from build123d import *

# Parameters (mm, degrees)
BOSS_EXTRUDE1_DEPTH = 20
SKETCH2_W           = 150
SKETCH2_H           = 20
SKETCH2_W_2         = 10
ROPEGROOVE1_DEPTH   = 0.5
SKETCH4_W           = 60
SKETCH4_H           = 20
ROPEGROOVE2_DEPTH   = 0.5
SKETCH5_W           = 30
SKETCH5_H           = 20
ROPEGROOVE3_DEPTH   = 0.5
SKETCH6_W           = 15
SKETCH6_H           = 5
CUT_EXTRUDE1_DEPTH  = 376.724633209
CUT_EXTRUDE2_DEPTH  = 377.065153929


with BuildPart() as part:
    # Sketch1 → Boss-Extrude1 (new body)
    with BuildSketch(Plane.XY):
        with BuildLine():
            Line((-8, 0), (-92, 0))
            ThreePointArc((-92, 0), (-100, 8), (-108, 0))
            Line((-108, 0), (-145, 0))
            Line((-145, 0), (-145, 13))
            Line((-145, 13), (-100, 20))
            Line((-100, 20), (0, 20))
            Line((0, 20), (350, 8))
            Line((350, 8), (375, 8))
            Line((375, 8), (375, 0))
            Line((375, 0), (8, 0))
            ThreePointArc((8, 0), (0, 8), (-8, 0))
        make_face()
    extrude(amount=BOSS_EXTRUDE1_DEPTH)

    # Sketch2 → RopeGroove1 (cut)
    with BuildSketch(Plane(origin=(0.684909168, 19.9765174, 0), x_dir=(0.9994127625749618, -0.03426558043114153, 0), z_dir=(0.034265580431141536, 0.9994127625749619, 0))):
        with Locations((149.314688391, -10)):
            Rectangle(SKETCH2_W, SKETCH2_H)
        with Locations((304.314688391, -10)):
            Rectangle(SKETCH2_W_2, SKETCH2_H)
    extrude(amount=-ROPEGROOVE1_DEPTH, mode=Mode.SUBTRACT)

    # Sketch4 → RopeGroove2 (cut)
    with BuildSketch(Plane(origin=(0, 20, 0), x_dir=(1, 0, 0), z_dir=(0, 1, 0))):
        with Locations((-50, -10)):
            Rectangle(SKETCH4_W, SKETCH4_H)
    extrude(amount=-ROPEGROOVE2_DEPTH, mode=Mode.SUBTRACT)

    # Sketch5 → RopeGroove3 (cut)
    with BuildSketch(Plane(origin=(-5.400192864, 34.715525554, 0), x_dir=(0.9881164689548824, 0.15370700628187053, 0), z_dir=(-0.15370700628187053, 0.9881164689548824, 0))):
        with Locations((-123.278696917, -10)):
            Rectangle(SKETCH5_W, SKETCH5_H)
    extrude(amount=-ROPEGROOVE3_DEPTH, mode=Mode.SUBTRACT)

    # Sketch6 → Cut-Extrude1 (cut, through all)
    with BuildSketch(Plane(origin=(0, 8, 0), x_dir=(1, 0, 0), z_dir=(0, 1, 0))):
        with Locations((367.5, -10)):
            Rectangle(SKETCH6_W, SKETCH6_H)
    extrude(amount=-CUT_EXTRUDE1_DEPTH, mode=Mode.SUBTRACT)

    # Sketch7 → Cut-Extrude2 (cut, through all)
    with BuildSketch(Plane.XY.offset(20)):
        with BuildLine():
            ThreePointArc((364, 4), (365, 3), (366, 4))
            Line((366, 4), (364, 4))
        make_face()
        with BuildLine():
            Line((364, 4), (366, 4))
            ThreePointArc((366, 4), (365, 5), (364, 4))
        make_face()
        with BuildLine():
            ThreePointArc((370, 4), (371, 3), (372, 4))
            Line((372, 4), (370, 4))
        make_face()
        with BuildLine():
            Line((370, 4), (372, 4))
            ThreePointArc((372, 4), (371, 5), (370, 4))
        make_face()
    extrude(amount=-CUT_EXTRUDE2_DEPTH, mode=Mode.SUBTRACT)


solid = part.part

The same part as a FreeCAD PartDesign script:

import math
import FreeCAD as App
import Part
import Sketcher
Q = App.Units.Quantity

doc = App.newDocument("Part")
body = doc.addObject("PartDesign::Body", "Body")

# Sketch on XY plane
sketch1 = doc.addObject("Sketcher::SketchObject", "Sketch")
body.addObject(sketch1)
sketch1.AttachmentSupport = (doc.XY_Plane, [""])
sketch1.MapMode = "FlatFace"
sketch1.addGeometry([
    Part.LineSegment(App.Vector(-92, 0, 0), App.Vector(-8, 0, 0)),  # 0
    Part.ArcOfCircle(Part.Circle(App.Vector(0, 0, 0), App.Vector(0, 0, 1), 8), math.radians(0), math.radians(180)),  # 1
    Part.LineSegment(App.Vector(8, 0, 0), App.Vector(375, 0, 0)),  # 2
    Part.LineSegment(App.Vector(375, 0, 0), App.Vector(375, 8, 0)),  # 3
    Part.LineSegment(App.Vector(375, 8, 0), App.Vector(350, 8, 0)),  # 4
    Part.LineSegment(App.Vector(350, 8, 0), App.Vector(0, 20, 0)),  # 5
    Part.LineSegment(App.Vector(0, 20, 0), App.Vector(-100, 20, 0)),  # 6
    Part.LineSegment(App.Vector(-100, 20, 0), App.Vector(-145, 13, 0)),  # 7
    Part.LineSegment(App.Vector(-145, 13, 0), App.Vector(-145, 0, 0)),  # 8
    Part.LineSegment(App.Vector(-145, 0, 0), App.Vector(-108, 0, 0)),  # 9
    Part.ArcOfCircle(Part.Circle(App.Vector(-100, 0, 0), App.Vector(0, 0, 1), 8), math.radians(0), math.radians(180)),  # 10
], False)
sketch1.addConstraint([
    Sketcher.Constraint("Coincident", 0, 2, 1, 2),
    Sketcher.Constraint("Coincident", 1, 1, 2, 1),
    Sketcher.Constraint("Coincident", 2, 2, 3, 1),
    Sketcher.Constraint("Coincident", 3, 2, 4, 1),
    Sketcher.Constraint("Coincident", 4, 2, 5, 1),
    Sketcher.Constraint("Coincident", 5, 2, 6, 1),
    Sketcher.Constraint("Coincident", 6, 2, 7, 1),
    Sketcher.Constraint("Coincident", 7, 2, 8, 1),
    Sketcher.Constraint("Coincident", 8, 2, 9, 1),
    Sketcher.Constraint("Coincident", 9, 2, 10, 2),
    Sketcher.Constraint("Coincident", 10, 1, 0, 1),
    Sketcher.Constraint("Horizontal", 0),
    Sketcher.Constraint("Horizontal", 2),
    Sketcher.Constraint("Vertical", 3),
    Sketcher.Constraint("Horizontal", 4),
    Sketcher.Constraint("Horizontal", 6),
    Sketcher.Constraint("Vertical", 8),
    Sketcher.Constraint("Horizontal", 9),
    Sketcher.Constraint("Coincident", 1, 3, -1, 1),
    Sketcher.Constraint("Equal", 1, 10),
    Sketcher.Constraint("PointOnObject", 10, 3, -1),
    Sketcher.Constraint("PointOnObject", 0, 2, -1),
    Sketcher.Constraint("PointOnObject", 1, 1, -1),
    Sketcher.Constraint("PointOnObject", 5, 2, -2),
    Sketcher.Constraint("PointOnObject", 8, 2, -1),
    Sketcher.Constraint("Vertical", 10, 3, 6, 2),
    Sketcher.Constraint("Radius", 1, Q("8 mm")),
    Sketcher.Constraint("DistanceX", 0, 1, 0, 2, Q("84 mm")),
    Sketcher.Constraint("DistanceX", 2, 1, 2, 2, Q("367 mm")),
    Sketcher.Constraint("DistanceX", 4, 2, 4, 1, Q("25 mm")),
    Sketcher.Constraint("DistanceX", 9, 1, 9, 2, Q("37 mm")),
    Sketcher.Constraint("DistanceY", 3, 1, 3, 2, Q("8 mm")),
    Sketcher.Constraint("DistanceY", 8, 2, 8, 1, Q("13 mm")),
    Sketcher.Constraint("DistanceY", -1, 1, 5, 2, Q("20 mm")),
])
pad1 = doc.addObject("PartDesign::Pad", "Pad")
body.addObject(pad1)
pad1.Profile = sketch1
pad1.Length = 20

# Sketch on an angled plane
sketch2 = doc.addObject("Sketcher::SketchObject", "Sketch001")
body.addObject(sketch2)
sketch2.Placement = App.Placement(App.Vector(0.684909, 19.976517, 0), App.Rotation(App.Vector(0.999412763, -0.03426558, 0), App.Vector(0, 0, -1.000000001), App.Vector(0.03426558, 0.999412763, 0), "ZXY"))
sketch2.addGeometry([
    Part.LineSegment(App.Vector(74, 0, 0), App.Vector(74, -20, 0)),  # 0
    Part.LineSegment(App.Vector(74, -20, 0), App.Vector(224, -20, 0)),  # 1
    Part.LineSegment(App.Vector(224, -20, 0), App.Vector(224, 0, 0)),  # 2
    Part.LineSegment(App.Vector(224, 0, 0), App.Vector(74, 0, 0)),  # 3
    Part.LineSegment(App.Vector(299, 0, 0), App.Vector(299, -20, 0)),  # 4
    Part.LineSegment(App.Vector(299, -20, 0), App.Vector(309, -20, 0)),  # 5
    Part.LineSegment(App.Vector(309, -20, 0), App.Vector(309, 0, 0)),  # 6
    Part.LineSegment(App.Vector(309, 0, 0), App.Vector(299, 0, 0)),  # 7
], False)
sketch2.addConstraint([
    Sketcher.Constraint("Coincident", 0, 2, 1, 1),
    Sketcher.Constraint("Coincident", 1, 2, 2, 1),
    Sketcher.Constraint("Coincident", 2, 2, 3, 1),
    Sketcher.Constraint("Coincident", 3, 2, 0, 1),
    Sketcher.Constraint("Coincident", 4, 2, 5, 1),
    Sketcher.Constraint("Coincident", 5, 2, 6, 1),
    Sketcher.Constraint("Coincident", 6, 2, 7, 1),
    Sketcher.Constraint("Coincident", 7, 2, 4, 1),
    Sketcher.Constraint("Vertical", 0),
    Sketcher.Constraint("Horizontal", 1),
    Sketcher.Constraint("Vertical", 2),
    Sketcher.Constraint("Horizontal", 3),
    Sketcher.Constraint("Vertical", 4),
    Sketcher.Constraint("Horizontal", 5),
    Sketcher.Constraint("Vertical", 6),
    Sketcher.Constraint("Horizontal", 7),
    Sketcher.Constraint("PointOnObject", 2, 2, -1),
    Sketcher.Constraint("PointOnObject", 6, 2, -1),
    Sketcher.Constraint("Horizontal", 1, 2, 4, 2),
    Sketcher.Constraint("DistanceX", 1, 1, 1, 2, Q("150 mm")),
    Sketcher.Constraint("DistanceX", 5, 1, 5, 2, Q("10 mm")),
    Sketcher.Constraint("DistanceY", 0, 2, 0, 1, Q("20 mm")),
    Sketcher.Constraint("DistanceX", 1, 2, 4, 2, Q("75 mm")),
    Sketcher.Constraint("DistanceX", -1, 1, 0, 2, Q("74.314688 mm")),
])
pocket1 = doc.addObject("PartDesign::Pocket", "Pocket")
body.addObject(pocket1)
pocket1.Profile = sketch2
pocket1.Length = 0.5

# Sketch on XZ plane
sketch3 = doc.addObject("Sketcher::SketchObject", "Sketch002")
body.addObject(sketch3)
sketch3.AttachmentSupport = (doc.XZ_Plane, [""])
sketch3.MapMode = "FlatFace"
sketch3.AttachmentOffset = App.Placement(App.Vector(0, 0, -20), App.Rotation())
sketch3.addGeometry([
    Part.LineSegment(App.Vector(-80, 0, 0), App.Vector(-80, 20, 0)),
    Part.LineSegment(App.Vector(-80, 20, 0), App.Vector(-20, 20, 0)),
    Part.LineSegment(App.Vector(-20, 20, 0), App.Vector(-20, 0, 0)),
    Part.LineSegment(App.Vector(-20, 0, 0), App.Vector(-80, 0, 0)),
], False)
sketch3.addConstraint([
    Sketcher.Constraint("Coincident", 0, 2, 1, 1),
    Sketcher.Constraint("Coincident", 1, 2, 2, 1),
    Sketcher.Constraint("Coincident", 2, 2, 3, 1),
    Sketcher.Constraint("Coincident", 3, 2, 0, 1),
    Sketcher.Constraint("Vertical", 0),
    Sketcher.Constraint("Horizontal", 1),
    Sketcher.Constraint("Vertical", 2),
    Sketcher.Constraint("Horizontal", 3),
    Sketcher.Constraint("PointOnObject", 2, 2, -1),
    Sketcher.Constraint("DistanceX", 1, 1, 1, 2, Q("60 mm")),
    Sketcher.Constraint("DistanceY", 0, 1, 0, 2, Q("20 mm")),
    Sketcher.Constraint("DistanceX", 0, 2, -1, 1, Q("80 mm")),
])
pocket2 = doc.addObject("PartDesign::Pocket", "Pocket001")
body.addObject(pocket2)
pocket2.Profile = sketch3
pocket2.Length = 0.5
pocket2.Reversed = True

# Sketch on an angled plane
sketch4 = doc.addObject("Sketcher::SketchObject", "Sketch003")
body.addObject(sketch4)
sketch4.Placement = App.Placement(App.Vector(-5.400193, 34.715526, 0), App.Rotation(App.Vector(0.988116469, 0.153707006, 0), App.Vector(0, 0, -1), App.Vector(-0.153707006, 0.988116469, 0), "ZXY"))
sketch4.addGeometry([
    Part.LineSegment(App.Vector(-138, 0, 0), App.Vector(-138, -20, 0)),
    Part.LineSegment(App.Vector(-138, -20, 0), App.Vector(-108, -20, 0)),
    Part.LineSegment(App.Vector(-108, -20, 0), App.Vector(-108, 0, 0)),
    Part.LineSegment(App.Vector(-108, 0, 0), App.Vector(-138, 0, 0)),
], False)
sketch4.addConstraint([
    Sketcher.Constraint("Coincident", 0, 2, 1, 1),
    Sketcher.Constraint("Coincident", 1, 2, 2, 1),
    Sketcher.Constraint("Coincident", 2, 2, 3, 1),
    Sketcher.Constraint("Coincident", 3, 2, 0, 1),
    Sketcher.Constraint("Vertical", 0),
    Sketcher.Constraint("Horizontal", 1),
    Sketcher.Constraint("Vertical", 2),
    Sketcher.Constraint("Horizontal", 3),
    Sketcher.Constraint("PointOnObject", 2, 2, -1),
    Sketcher.Constraint("DistanceX", 1, 1, 1, 2, Q("30 mm")),
    Sketcher.Constraint("DistanceY", 0, 2, 0, 1, Q("20 mm")),
    Sketcher.Constraint("DistanceX", 0, 2, -1, 1, Q("138.278697 mm")),
])
pocket3 = doc.addObject("PartDesign::Pocket", "Pocket002")
body.addObject(pocket3)
pocket3.Profile = sketch4
pocket3.Length = 0.5

# Sketch on XZ plane
sketch5 = doc.addObject("Sketcher::SketchObject", "Sketch004")
body.addObject(sketch5)
sketch5.AttachmentSupport = (doc.XZ_Plane, [""])
sketch5.MapMode = "FlatFace"
sketch5.AttachmentOffset = App.Placement(App.Vector(0, 0, -8), App.Rotation())
sketch5.addGeometry([
    Part.LineSegment(App.Vector(360, 8, 0), App.Vector(360, 12, 0)),
    Part.LineSegment(App.Vector(360, 12, 0), App.Vector(375, 12, 0)),
    Part.LineSegment(App.Vector(375, 12, 0), App.Vector(375, 8, 0)),
    Part.LineSegment(App.Vector(375, 8, 0), App.Vector(360, 8, 0)),
], False)
sketch5.addConstraint([
    Sketcher.Constraint("Coincident", 0, 2, 1, 1),
    Sketcher.Constraint("Coincident", 1, 2, 2, 1),
    Sketcher.Constraint("Coincident", 2, 2, 3, 1),
    Sketcher.Constraint("Coincident", 3, 2, 0, 1),
    Sketcher.Constraint("Vertical", 0),
    Sketcher.Constraint("Horizontal", 1),
    Sketcher.Constraint("Vertical", 2),
    Sketcher.Constraint("Horizontal", 3),
    Sketcher.Constraint("DistanceX", 1, 1, 1, 2, Q("15 mm")),
    Sketcher.Constraint("DistanceY", 0, 1, 0, 2, Q("5 mm")),
    Sketcher.Constraint("DistanceX", -1, 1, 0, 2, Q("360 mm")),
    Sketcher.Constraint("DistanceY", -1, 1, 0, 2, Q("12.5 mm")),
])
pocket4 = doc.addObject("PartDesign::Pocket", "Pocket003")
body.addObject(pocket4)
pocket4.Profile = sketch5
pocket4.Type = "ThroughAll"
pocket4.Reversed = True

# Sketch on XY plane
sketch6 = doc.addObject("Sketcher::SketchObject", "Sketch005")
body.addObject(sketch6)
sketch6.AttachmentSupport = (doc.XY_Plane, [""])
sketch6.MapMode = "FlatFace"
sketch6.AttachmentOffset = App.Placement(App.Vector(0, 0, 20), App.Rotation())
sketch6.addGeometry([
    Part.Circle(App.Vector(365, 4, 0), App.Vector(0, 0, 1), 1),
    Part.Circle(App.Vector(371, 4, 0), App.Vector(0, 0, 1), 1),
], False)
sketch6.addConstraint([
    Sketcher.Constraint("Equal", 0, 1),
    Sketcher.Constraint("Horizontal", 0, 3, 1, 3),
    Sketcher.Constraint("Diameter", 0, Q("2 mm")),
    Sketcher.Constraint("DistanceX", -1, 1, 0, 3, Q("365 mm")),
    Sketcher.Constraint("DistanceY", -1, 1, 0, 3, Q("4 mm")),
    Sketcher.Constraint("DistanceX", -1, 1, 1, 3, Q("371 mm")),
])
pocket5 = doc.addObject("PartDesign::Pocket", "Pocket004")
body.addObject(pocket5)
pocket5.Profile = sketch6
pocket5.Type = "ThroughAll"

doc.recompute()
